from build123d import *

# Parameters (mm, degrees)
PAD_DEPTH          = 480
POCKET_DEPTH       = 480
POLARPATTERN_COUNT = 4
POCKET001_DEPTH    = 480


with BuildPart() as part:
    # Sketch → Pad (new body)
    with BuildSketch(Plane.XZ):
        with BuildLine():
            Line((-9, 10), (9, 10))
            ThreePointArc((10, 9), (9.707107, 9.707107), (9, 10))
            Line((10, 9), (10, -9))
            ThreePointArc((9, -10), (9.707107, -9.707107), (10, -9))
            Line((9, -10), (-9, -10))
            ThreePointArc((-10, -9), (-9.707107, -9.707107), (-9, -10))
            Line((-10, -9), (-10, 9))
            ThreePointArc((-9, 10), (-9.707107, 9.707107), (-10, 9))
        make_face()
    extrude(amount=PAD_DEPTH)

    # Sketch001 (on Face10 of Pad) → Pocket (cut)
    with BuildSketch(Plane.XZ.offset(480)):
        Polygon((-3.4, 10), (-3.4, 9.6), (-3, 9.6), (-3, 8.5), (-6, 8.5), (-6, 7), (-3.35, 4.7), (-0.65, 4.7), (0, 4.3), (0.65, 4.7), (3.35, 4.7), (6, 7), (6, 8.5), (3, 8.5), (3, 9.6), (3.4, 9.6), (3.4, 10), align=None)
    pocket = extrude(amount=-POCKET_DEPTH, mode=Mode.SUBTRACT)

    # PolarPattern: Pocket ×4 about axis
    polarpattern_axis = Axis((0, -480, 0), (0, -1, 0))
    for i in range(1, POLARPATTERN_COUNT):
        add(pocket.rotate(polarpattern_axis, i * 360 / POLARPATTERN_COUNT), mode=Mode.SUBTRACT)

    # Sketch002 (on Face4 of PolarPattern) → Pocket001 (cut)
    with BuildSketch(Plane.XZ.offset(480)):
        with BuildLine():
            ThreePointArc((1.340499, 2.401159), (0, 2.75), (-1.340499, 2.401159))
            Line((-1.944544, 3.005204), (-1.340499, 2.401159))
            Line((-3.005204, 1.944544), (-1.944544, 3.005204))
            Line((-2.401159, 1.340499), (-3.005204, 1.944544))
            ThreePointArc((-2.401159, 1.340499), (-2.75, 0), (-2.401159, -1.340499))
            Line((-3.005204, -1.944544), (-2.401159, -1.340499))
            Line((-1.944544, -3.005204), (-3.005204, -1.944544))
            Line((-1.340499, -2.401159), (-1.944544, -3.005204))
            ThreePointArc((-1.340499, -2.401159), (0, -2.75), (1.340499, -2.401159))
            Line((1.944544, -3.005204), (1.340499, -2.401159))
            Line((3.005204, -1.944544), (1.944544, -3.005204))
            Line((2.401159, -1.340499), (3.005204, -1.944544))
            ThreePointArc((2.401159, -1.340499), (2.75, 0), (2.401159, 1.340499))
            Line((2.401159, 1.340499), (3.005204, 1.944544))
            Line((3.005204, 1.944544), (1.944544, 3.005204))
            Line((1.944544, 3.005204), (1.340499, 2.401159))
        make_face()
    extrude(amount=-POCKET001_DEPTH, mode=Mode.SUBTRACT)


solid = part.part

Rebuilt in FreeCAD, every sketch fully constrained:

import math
import FreeCAD as App
import Part
import Sketcher
from FreeCAD import Vector
Q = App.Units.Quantity


def add_polygon(sketch, points):
    """Adds a closed chain of lines whose ends are joined by coincident constraints."""
    first, n = sketch.GeometryCount, len(points)
    for a, b in zip(points, points[1:] + points[:1]):
        sketch.addGeometry(Part.LineSegment(App.Vector(*a, 0), App.Vector(*b, 0)), False)
    for i in range(n):
        sketch.addConstraint(Sketcher.Constraint("Coincident", first + i, 2, first + (i + 1) % n, 1))

doc = App.newDocument("Part")
params = doc.addObject("Spreadsheet::Sheet", "Params")
for row, (alias, value) in enumerate([
    ("sketch1_radius", "0.999999 mm"),
    ("sketch1_width", "18 mm"),
    ("pad1_length", "480 mm"),
    ("sketch2_width", "3 mm"),
    ("sketch2_width2", "0.4 mm"),
    ("sketch2_width3", "2.7 mm"),
    ("sketch2_width4", "6.8 mm"),
    ("sketch2_height", "1.1 mm"),
    ("pocket1_length", "480 mm"),
    ("sketch3_length", "1.5 mm"),
    ("pocket2_length", "480 mm"),
], start=1):
    params.set(f"A{row}", alias)
    params.set(f"B{row}", "=" + value)
    params.setAlias(f"B{row}", alias)

body = doc.addObject("PartDesign::Body", "Body")

# Sketch on XZ plane
sketch1 = body.newObject("Sketcher::SketchObject", "Sketch")
sketch1.AttachmentSupport = (doc.getObject("XZ_Plane"), [""])
sketch1.MapMode = "FlatFace"
sketch1.addGeometry(Part.LineSegment(Vector(9, 10, 0), Vector(-9, 10, 0)), False)
sketch1.addGeometry(Part.ArcOfCircle(Part.Circle(Vector(-9, 9, 0), Vector(0, 0, 1), 1), math.radians(90), math.radians(180)), False)
sketch1.addGeometry(Part.LineSegment(Vector(-10, 9, 0), Vector(-10, -9, 0)), False)
sketch1.addGeometry(Part.ArcOfCircle(Part.Circle(Vector(-9, -9, 0), Vector(0, 0, 1), 1), math.radians(180), math.radians(270)), False)
sketch1.addGeometry(Part.LineSegment(Vector(-9, -10, 0), Vector(9, -10, 0)), False)
sketch1.addGeometry(Part.ArcOfCircle(Part.Circle(Vector(9, -9, 0), Vector(0, 0, 1), 1), math.radians(-90), math.radians(0)), False)
sketch1.addGeometry(Part.LineSegment(Vector(10, -9, 0), Vector(10, 9, 0)), False)
sketch1.addGeometry(Part.ArcOfCircle(Part.Circle(Vector(9, 9, 0), Vector(0, 0, 1), 1), math.radians(0), math.radians(90)), False)
sketch1.addConstraint(Sketcher.Constraint("Tangent", 0, 2, 1, 1))
sketch1.addConstraint(Sketcher.Constraint("Tangent", 1, 2, 2, 1))
sketch1.addConstraint(Sketcher.Constraint("Tangent", 2, 2, 3, 1))
sketch1.addConstraint(Sketcher.Constraint("Tangent", 3, 2, 4, 1))
sketch1.addConstraint(Sketcher.Constraint("Tangent", 4, 2, 5, 1))
sketch1.addConstraint(Sketcher.Constraint("Tangent", 5, 2, 6, 1))
sketch1.addConstraint(Sketcher.Constraint("Tangent", 6, 2, 7, 1))
sketch1.addConstraint(Sketcher.Constraint("Tangent", 7, 2, 0, 1))
sketch1.addConstraint(Sketcher.Constraint("Horizontal", 0))
sketch1.addConstraint(Sketcher.Constraint("Vertical", 2))
sketch1.addConstraint(Sketcher.Constraint("Horizontal", 4))
sketch1.addConstraint(Sketcher.Constraint("Vertical", 6))
sketch1.addConstraint(Sketcher.Constraint("Equal", 1, 3))
sketch1.addConstraint(Sketcher.Constraint("Equal", 3, 5))
sketch1.addConstraint(Sketcher.Constraint("Equal", 5, 7))
sketch1.addConstraint(Sketcher.Constraint("Symmetric", 1, 3, 5, 3, -1, 1))
sketch1.addConstraint(Sketcher.Constraint("Equal", 4, 2))
sketch1.addConstraint(Sketcher.Constraint("Radius", 1, Q("0.999999 mm")))
sketch1.addConstraint(Sketcher.Constraint("DistanceX", 0, 2, 0, 1, Q("18 mm")))
sketch1.setExpression("Constraints[17]", "Params.sketch1_radius")
sketch1.setExpression("Constraints[18]", "Params.sketch1_width")
pad1 = body.newObject("PartDesign::Pad", "Pad")
pad1.Profile = sketch1
pad1.setExpression("Length", "Params.pad1_length")

# Sketch on XZ plane
sketch2 = body.newObject("Sketcher::SketchObject", "Sketch001")
sketch2.AttachmentSupport = (doc.getObject("XZ_Plane"), [""])
sketch2.MapMode = "FlatFace"
sketch2.AttachmentOffset = App.Placement(Vector(0, 0, 480), App.Rotation())
add_polygon(sketch2, [(-3.4, 10), (-3.4, 9.6), (-3, 9.6), (-3, 8.5), (-6, 8.5), (-6, 7), (-3.35, 4.7), (-0.65, 4.7), (0, 4.3), (0.65, 4.7), (3.35, 4.7), (6, 7), (6, 8.5), (3, 8.5), (3, 9.6), (3.4, 9.6), (3.4, 10)])  # lines 0-16
sketch2.addConstraint(Sketcher.Constraint("Vertical", 0))
sketch2.addConstraint(Sketcher.Constraint("Horizontal", 1))
sketch2.addConstraint(Sketcher.Constraint("Vertical", 2))
sketch2.addConstraint(Sketcher.Constraint("Horizontal", 3))
sketch2.addConstraint(Sketcher.Constraint("Vertical", 4))
sketch2.addConstraint(Sketcher.Constraint("Horizontal", 6))
sketch2.addConstraint(Sketcher.Constraint("Horizontal", 9))
sketch2.addConstraint(Sketcher.Constraint("Vertical", 11))
sketch2.addConstraint(Sketcher.Constraint("Horizontal", 12))
sketch2.addConstraint(Sketcher.Constraint("Vertical", 13))
sketch2.addConstraint(Sketcher.Constraint("Horizontal", 14))
sketch2.addConstraint(Sketcher.Constraint("Vertical", 15))
sketch2.addConstraint(Sketcher.Constraint("Horizontal", 16))
sketch2.addConstraint(Sketcher.Constraint("Symmetric", 6, 2, 8, 2, -2))
sketch2.addConstraint(Sketcher.Constraint("Symmetric", 4, 2, 10, 2, -2))
sketch2.addConstraint(Sketcher.Constraint("Symmetric", 2, 2, 12, 2, -2))
sketch2.addConstraint(Sketcher.Constraint("Symmetric", 0, 2, 14, 2, -2))
sketch2.addConstraint(Sketcher.Constraint("PointOnObject", 7, 2, -2))
sketch2.addConstraint(Sketcher.Constraint("Equal", 6, 9))
sketch2.addConstraint(Sketcher.Constraint("Equal", 14, 0))
sketch2.addConstraint(Sketcher.Constraint("DistanceX", 3, 2, 3, 1, Q("3 mm")))
sketch2.addConstraint(Sketcher.Constraint("DistanceX", 1, 1, 1, 2, Q("0.4 mm")))
sketch2.addConstraint(Sketcher.Constraint("DistanceX", 6, 1, 6, 2, Q("2.7 mm")))
sketch2.addConstraint(Sketcher.Constraint("DistanceX", 16, 2, 16, 1, Q("6.8 mm")))
sketch2.addConstraint(Sketcher.Constraint("DistanceY", 2, 2, 2, 1, Q("1.1 mm")))
sketch2.addConstraint(Sketcher.Constraint("DistanceY", 4, 2, 4, 1, Q("1.5 mm")))
sketch2.addConstraint(Sketcher.Constraint("DistanceY", -1, 1, 4, 2, Q("7 mm")))
sketch2.addConstraint(Sketcher.Constraint("DistanceX", 5, 2, 8, 2, Q("4 mm")))
sketch2.addConstraint(Sketcher.Constraint("DistanceY", -1, 1, 5, 2, Q("4.7 mm")))
sketch2.addConstraint(Sketcher.Constraint("DistanceY", -1, 1, 7, 2, Q("4.3 mm")))
sketch2.setExpression("Constraints[37]", "Params.sketch2_width")
sketch2.setExpression("Constraints[38]", "Params.sketch2_width2")
sketch2.setExpression("Constraints[39]", "Params.sketch2_width3")
sketch2.setExpression("Constraints[40]", "Params.sketch2_width4")
sketch2.setExpression("Constraints[41]", "Params.sketch2_height")
pocket1 = body.newObject("PartDesign::Pocket", "Pocket")
pocket1.Profile = sketch2
pocket1.setExpression("Length", "Params.pocket1_length")
doc.recompute()

polarpattern = body.newObject("PartDesign::PolarPattern", "PolarPattern")
polarpattern.Originals = [pocket1]
polarpattern.Axis = (doc.getObject("Y_Axis"), [""])
polarpattern.Angle = 360
polarpattern.Occurrences = 4
body.Tip = polarpattern

# Sketch on XZ plane
sketch3 = body.newObject("Sketcher::SketchObject", "Sketch002")
sketch3.AttachmentSupport = (doc.getObject("XZ_Plane"), [""])
sketch3.MapMode = "FlatFace"
sketch3.AttachmentOffset = App.Placement(Vector(0, 0, 480), App.Rotation())
sketch3.addGeometry(Part.ArcOfCircle(Part.Circle(Vector(0, 0, 0), Vector(0, 0, 1), 2.8), math.radians(61), math.radians(119)), False)
sketch3.addGeometry(Part.LineSegment(Vector(-1.3, 2.4, 0), Vector(-1.9, 3, 0)), False)
sketch3.addGeometry(Part.LineSegment(Vector(-1.9, 3, 0), Vector(-3, 1.9, 0)), False)
sketch3.addGeometry(Part.LineSegment(Vector(-3, 1.9, 0), Vector(-2.4, 1.3, 0)), False)
sketch3.addGeometry(Part.ArcOfCircle(Part.Circle(Vector(0, 0, 0), Vector(0, 0, 1), 2.8), math.radians(151), math.radians(209)), False)
sketch3.addGeometry(Part.LineSegment(Vector(-2.4, -1.3, 0), Vector(-3, -1.9, 0)), False)
sketch3.addGeometry(Part.LineSegment(Vector(-3, -1.9, 0), Vector(-1.9, -3, 0)), False)
sketch3.addGeometry(Part.LineSegment(Vector(-1.9, -3, 0), Vector(-1.3, -2.4, 0)), False)
sketch3.addGeometry(Part.ArcOfCircle(Part.Circle(Vector(0, 0, 0), Vector(0, 0, 1), 2.8), math.radians(-119), math.radians(-61)), False)
sketch3.addGeometry(Part.LineSegment(Vector(1.3, -2.4, 0), Vector(1.9, -3, 0)), False)
sketch3.addGeometry(Part.LineSegment(Vector(1.9, -3, 0), Vector(3, -1.9, 0)), False)
sketch3.addGeometry(Part.LineSegment(Vector(3, -1.9, 0), Vector(2.4, -1.3, 0)), False)
sketch3.addGeometry(Part.ArcOfCircle(Part.Circle(Vector(0, 0, 0), Vector(0, 0, 1), 2.8), math.radians(-29), math.radians(29)), False)
sketch3.addGeometry(Part.LineSegment(Vector(2.4, 1.3, 0), Vector(3, 1.9, 0)), False)
sketch3.addGeometry(Part.LineSegment(Vector(3, 1.9, 0), Vector(1.9, 3, 0)), False)
sketch3.addGeometry(Part.LineSegment(Vector(1.9, 3, 0), Vector(1.3, 2.4, 0)), False)
sketch3.addConstraint(Sketcher.Constraint("Coincident", 0, 2, 1, 1))
sketch3.addConstraint(Sketcher.Constraint("Coincident", 1, 2, 2, 1))
sketch3.addConstraint(Sketcher.Constraint("Coincident", 2, 2, 3, 1))
sketch3.addConstraint(Sketcher.Constraint("Coincident", 3, 2, 4, 1))
sketch3.addConstraint(Sketcher.Constraint("Coincident", 4, 2, 5, 1))
sketch3.addConstraint(Sketcher.Constraint("Coincident", 5, 2, 6, 1))
sketch3.addConstraint(Sketcher.Constraint("Coincident", 6, 2, 7, 1))
sketch3.addConstraint(Sketcher.Constraint("Coincident", 7, 2, 8, 1))
sketch3.addConstraint(Sketcher.Constraint("Coincident", 8, 2, 9, 1))
sketch3.addConstraint(Sketcher.Constraint("Coincident", 9, 2, 10, 1))
sketch3.addConstraint(Sketcher.Constraint("Coincident", 10, 2, 11, 1))
sketch3.addConstraint(Sketcher.Constraint("Coincident", 11, 2, 12, 1))
sketch3.addConstraint(Sketcher.Constraint("Coincident", 12, 2, 13, 1))
sketch3.addConstraint(Sketcher.Constraint("Coincident", 13, 2, 14, 1))
sketch3.addConstraint(Sketcher.Constraint("Coincident", 14, 2, 15, 1))
sketch3.addConstraint(Sketcher.Constraint("Coincident", 15, 2, 0, 1))
sketch3.addConstraint(Sketcher.Constraint("Coincident", 0, 3, -1, 1))
sketch3.addConstraint(Sketcher.Constraint("Coincident", 4, 3, -1, 1))
sketch3.addConstraint(Sketcher.Constraint("Coincident", 8, 3, -1, 1))
sketch3.addConstraint(Sketcher.Constraint("Coincident", 12, 3, -1, 1))
sketch3.addConstraint(Sketcher.Constraint("Equal", 0, 4))
sketch3.addConstraint(Sketcher.Constraint("Equal", 4, 8))
sketch3.addConstraint(Sketcher.Constraint("Equal", 8, 12))
sketch3.addConstraint(Sketcher.Constraint("Symmetric", 1, 2, 9, 2, -1, 1))
sketch3.addConstraint(Sketcher.Constraint("Symmetric", 2, 2, 10, 2, -1, 1))
sketch3.addConstraint(Sketcher.Constraint("Symmetric", 5, 2, 13, 2, -1, 1))
sketch3.addConstraint(Sketcher.Constraint("Symmetric", 6, 2, 14, 2, -1, 1))
sketch3.addConstraint(Sketcher.Constraint("Symmetric", 6, 2, 9, 2, -2))
sketch3.addConstraint(Sketcher.Constraint("Symmetric", 5, 2, 10, 2, -2))
sketch3.addConstraint(Sketcher.Constraint("Perpendicular", 1, 2))
sketch3.addConstraint(Sketcher.Constraint("Perpendicular", 2, 3))
sketch3.addConstraint(Sketcher.Constraint("Perpendicular", 3, 5))
sketch3.addConstraint(Sketcher.Constraint("Perpendicular", 5, 6))
sketch3.addConstraint(Sketcher.Constraint("Perpendicular", 6, 7))
sketch3.addConstraint(Sketcher.Constraint("Perpendicular", 7, 9))
sketch3.addConstraint(Sketcher.Constraint("Perpendicular", 10, 11))
sketch3.addConstraint(Sketcher.Constraint("Perpendicular", 11, 13))
sketch3.addConstraint(Sketcher.Constraint("Perpendicular", 14, 15))
sketch3.addConstraint(Sketcher.Constraint("Equal", 1, 3))
sketch3.addConstraint(Sketcher.Constraint("Distance", 2, Q("1.5 mm")))
sketch3.addConstraint(Sketcher.Constraint("Radius", 0, Q("2.750003 mm")))
sketch3.addConstraint(Sketcher.Constraint("DistanceY", 8, 3, 1, 2, Q("3.005201 mm")))
sketch3.setExpression("Constraints[39]", "Params.sketch3_length")
pocket2 = body.newObject("PartDesign::Pocket", "Pocket001")
pocket2.Profile = sketch3
pocket2.setExpression("Length", "Params.pocket2_length")

doc.recompute()
